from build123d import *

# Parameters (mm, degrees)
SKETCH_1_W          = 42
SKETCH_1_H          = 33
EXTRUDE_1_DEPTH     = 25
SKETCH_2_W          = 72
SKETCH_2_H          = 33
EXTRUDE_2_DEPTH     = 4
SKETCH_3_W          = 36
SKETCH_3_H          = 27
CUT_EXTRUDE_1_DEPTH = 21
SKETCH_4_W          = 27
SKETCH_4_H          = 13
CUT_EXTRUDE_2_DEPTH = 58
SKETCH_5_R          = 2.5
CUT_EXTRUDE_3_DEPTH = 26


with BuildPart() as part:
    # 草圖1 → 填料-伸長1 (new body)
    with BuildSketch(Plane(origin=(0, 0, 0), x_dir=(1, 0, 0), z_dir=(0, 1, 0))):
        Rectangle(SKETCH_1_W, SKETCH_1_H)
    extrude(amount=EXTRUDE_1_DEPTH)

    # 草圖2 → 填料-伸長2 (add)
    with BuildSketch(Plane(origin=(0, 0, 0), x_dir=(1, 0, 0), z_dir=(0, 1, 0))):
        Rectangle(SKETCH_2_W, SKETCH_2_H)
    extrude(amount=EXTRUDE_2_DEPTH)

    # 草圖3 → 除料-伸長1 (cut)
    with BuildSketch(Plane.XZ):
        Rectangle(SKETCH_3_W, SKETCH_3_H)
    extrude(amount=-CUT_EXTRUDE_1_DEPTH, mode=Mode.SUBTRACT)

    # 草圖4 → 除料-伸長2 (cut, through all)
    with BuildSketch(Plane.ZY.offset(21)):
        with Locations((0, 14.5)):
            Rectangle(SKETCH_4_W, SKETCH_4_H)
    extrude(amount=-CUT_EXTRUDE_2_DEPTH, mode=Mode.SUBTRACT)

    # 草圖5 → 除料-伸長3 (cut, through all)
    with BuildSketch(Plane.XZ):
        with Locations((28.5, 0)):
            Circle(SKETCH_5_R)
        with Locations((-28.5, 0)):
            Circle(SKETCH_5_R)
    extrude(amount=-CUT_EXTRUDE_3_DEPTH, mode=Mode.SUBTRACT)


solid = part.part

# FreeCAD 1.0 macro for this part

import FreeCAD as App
import Part
import Sketcher
from FreeCAD import Vector
Q = App.Units.Quantity


def add_polygon(sketch, points):
    """Adds a closed chain of lines whose ends are joined by coincident constraints."""
    first, n = sketch.GeometryCount, len(points)
    for a, b in zip(points, points[1:] + points[:1]):
        sketch.addGeometry(Part.LineSegment(App.Vector(*a, 0), App.Vector(*b, 0)), False)
    for i in range(n):
        sketch.addConstraint(Sketcher.Constraint("Coincident", first + i, 2, first + (i + 1) % n, 1))

doc = App.newDocument("Part")
body = doc.addObject("PartDesign::Body", "Body")

sketch1 = doc.addObject("Sketcher::SketchObject", "Sketch")
body.addObject(sketch1)
sketch1.AttachmentSupport = (doc.XZ_Plane, [""])
sketch1.MapMode = "FlatFace"
add_polygon(sketch1, [(-21, -16), (-21, 16), (21, 16), (21, -16)])
sketch1.addConstraint([
    Sketcher.Constraint("Vertical", 0),
    Sketcher.Constraint("Horizontal", 1),
    Sketcher.Constraint("Vertical", 2),
    Sketcher.Constraint("Horizontal", 3),
    Sketcher.Constraint("Symmetric", 0, 2, 2, 2, -1, 1),
    Sketcher.Constraint("DistanceX", 1, 1, 1, 2, Q("42 mm")),
    Sketcher.Constraint("DistanceY", 0, 1, 0, 2, Q("33 mm")),
])
pad1 = doc.addObject("PartDesign::Pad", "Pad")
body.addObject(pad1)
pad1.Profile = sketch1
pad1.Length = 25
pad1.Reversed = True

sketch2 = doc.addObject("Sketcher::SketchObject", "Sketch001")
body.addObject(sketch2)
sketch2.AttachmentSupport = (doc.XZ_Plane, [""])
sketch2.MapMode = "FlatFace"
add_polygon(sketch2, [(-36, -16), (-36, 16), (36, 16), (36, -16)])
sketch2.addConstraint([
    Sketcher.Constraint("Vertical", 0),
    Sketcher.Constraint("Horizontal", 1),
    Sketcher.Constraint("Vertical", 2),
    Sketcher.Constraint("Horizontal", 3),
    Sketcher.Constraint("Symmetric", 0, 2, 2, 2, -1, 1),
    Sketcher.Constraint("DistanceX", 1, 1, 1, 2, Q("72 mm")),
    Sketcher.Constraint("DistanceY", 0, 1, 0, 2, Q("33 mm")),
])
pad2 = doc.addObject("PartDesign::Pad", "Pad001")
body.addObject(pad2)
pad2.Profile = sketch2
pad2.Length = 4
pad2.Reversed = True

sketch3 = doc.addObject("Sketcher::SketchObject", "Sketch002")
body.addObject(sketch3)
sketch3.AttachmentSupport = (doc.XZ_Plane, [""])
sketch3.MapMode = "FlatFace"
add_polygon(sketch3, [(-18, 14), (-18, -14), (18, -14), (18, 14)])
sketch3.addConstraint([
    Sketcher.Constraint("Vertical", 0),
    Sketcher.Constraint("Horizontal", 1),
    Sketcher.Constraint("Vertical", 2),
    Sketcher.Constraint("Horizontal", 3),
    Sketcher.Constraint("Symmetric", 0, 2, 2, 2, -1, 1),
    Sketcher.Constraint("DistanceX", 1, 1, 1, 2, Q("36 mm")),
    Sketcher.Constraint("DistanceY", 0, 2, 0, 1, Q("27 mm")),
])
pocket1 = doc.addObject("PartDesign::Pocket", "Pocket")
body.addObject(pocket1)
pocket1.Profile = sketch3
pocket1.Length = 21

sketch4 = doc.addObject("Sketcher::SketchObject", "Sketch003")
body.addObject(sketch4)
sketch4.AttachmentSupport = (doc.YZ_Plane, [""])
sketch4.MapMode = "FlatFace"
sketch4.AttachmentOffset = App.Placement(Vector(0, 0, -21), App.Rotation())
add_polygon(sketch4, [(21, -14), (8, -14), (8, 14), (21, 14)])
sketch4.addConstraint([
    Sketcher.Constraint("Horizontal", 0),
    Sketcher.Constraint("Vertical", 1),
    Sketcher.Constraint("Horizontal", 2),
    Sketcher.Constraint("Vertical", 3),
    Sketcher.Constraint("DistanceX", 0, 2, 0, 1, Q("13 mm")),
    Sketcher.Constraint("DistanceY", 1, 1, 1, 2, Q("27 mm")),
    Sketcher.Constraint("DistanceX", -1, 1, 0, 2, Q("8 mm")),
    Sketcher.Constraint("DistanceY", 0, 2, -1, 1, Q("13.5 mm")),
])
pocket2 = doc.addObject("PartDesign::Pocket", "Pocket001")
body.addObject(pocket2)
pocket2.Profile = sketch4
pocket2.Type = "ThroughAll"
pocket2.Reversed = True

sketch5 = doc.addObject("Sketcher::SketchObject", "Sketch004")
body.addObject(sketch5)
sketch5.AttachmentSupport = (doc.XZ_Plane, [""])
sketch5.MapMode = "FlatFace"
sketch5.addGeometry([
    Part.Circle(Vector(28.5, 0, 0), Vector(0, 0, 1), 2.5),
    Part.Circle(Vector(-28.5, 0, 0), Vector(0, 0, 1), 2.5),
], False)
sketch5.addConstraint([
    Sketcher.Constraint("Equal", 0, 1),
    Sketcher.Constraint("Symmetric", 0, 3, 1, 3, -1, 1),
    Sketcher.Constraint("PointOnObject", 0, 3, -1),
    Sketcher.Constraint("Diameter", 0, Q("5 mm")),
    Sketcher.Constraint("DistanceX", 1, 3, 0, 3, Q("57 mm")),
])
pocket3 = doc.addObject("PartDesign::Pocket", "Pocket002")
body.addObject(pocket3)
pocket3.Profile = sketch5
pocket3.Type = "ThroughAll"

doc.recompute()
